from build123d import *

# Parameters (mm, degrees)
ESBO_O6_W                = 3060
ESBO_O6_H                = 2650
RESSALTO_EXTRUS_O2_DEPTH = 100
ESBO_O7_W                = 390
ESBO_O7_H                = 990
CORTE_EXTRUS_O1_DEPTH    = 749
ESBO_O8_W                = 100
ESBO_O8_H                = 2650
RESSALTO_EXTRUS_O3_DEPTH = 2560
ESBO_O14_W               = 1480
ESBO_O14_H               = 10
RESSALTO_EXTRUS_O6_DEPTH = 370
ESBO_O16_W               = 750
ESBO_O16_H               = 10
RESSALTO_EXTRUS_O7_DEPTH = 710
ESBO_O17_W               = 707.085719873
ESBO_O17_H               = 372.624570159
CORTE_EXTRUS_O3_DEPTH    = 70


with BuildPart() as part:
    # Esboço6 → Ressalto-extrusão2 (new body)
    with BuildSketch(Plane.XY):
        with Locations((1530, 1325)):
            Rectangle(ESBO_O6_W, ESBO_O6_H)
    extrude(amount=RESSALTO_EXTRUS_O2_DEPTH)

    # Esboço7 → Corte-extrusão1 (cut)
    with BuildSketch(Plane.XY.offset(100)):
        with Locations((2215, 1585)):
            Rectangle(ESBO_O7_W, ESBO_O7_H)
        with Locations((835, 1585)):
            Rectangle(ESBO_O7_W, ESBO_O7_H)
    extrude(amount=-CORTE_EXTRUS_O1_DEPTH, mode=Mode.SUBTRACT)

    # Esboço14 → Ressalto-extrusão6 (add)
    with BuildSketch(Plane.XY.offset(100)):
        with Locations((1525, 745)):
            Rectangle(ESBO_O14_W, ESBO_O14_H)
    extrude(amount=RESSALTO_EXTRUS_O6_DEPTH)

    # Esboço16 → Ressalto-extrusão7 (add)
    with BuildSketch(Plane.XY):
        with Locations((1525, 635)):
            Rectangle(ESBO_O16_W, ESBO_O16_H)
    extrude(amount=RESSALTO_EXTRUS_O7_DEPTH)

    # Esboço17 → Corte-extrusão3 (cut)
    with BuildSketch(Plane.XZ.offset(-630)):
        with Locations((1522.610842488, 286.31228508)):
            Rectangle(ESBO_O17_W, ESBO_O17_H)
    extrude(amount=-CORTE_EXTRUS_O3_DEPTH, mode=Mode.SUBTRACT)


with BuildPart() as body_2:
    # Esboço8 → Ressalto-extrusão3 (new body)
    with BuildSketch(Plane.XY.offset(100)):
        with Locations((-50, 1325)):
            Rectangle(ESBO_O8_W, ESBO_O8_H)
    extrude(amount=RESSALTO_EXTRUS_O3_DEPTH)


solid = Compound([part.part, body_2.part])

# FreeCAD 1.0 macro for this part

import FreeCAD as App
import Part
import Sketcher
Q = App.Units.Quantity


def add_polygon(sketch, points):
    """Adds a closed chain of lines whose ends are joined by coincident constraints."""
    first, n = sketch.GeometryCount, len(points)
    for a, b in zip(points, points[1:] + points[:1]):
        sketch.addGeometry(Part.LineSegment(App.Vector(*a, 0), App.Vector(*b, 0)), False)
    for i in range(n):
        sketch.addConstraint(Sketcher.Constraint("Coincident", first + i, 2, first + (i + 1) % n, 1))

doc = App.newDocument("Part")
params = doc.addObject("Spreadsheet::Sheet", "Params")
for row, (alias, value) in enumerate([
    ("sketch1_width", "3060 mm"),
    ("sketch1_height", "2650 mm"),
    ("pad1_length", "100 mm"),
    ("sketch2_width", "390 mm"),
    ("sketch2_height", "990 mm"),
    ("pocket1_length", "749 mm"),
    ("sketch3_width", "1480 mm"),
    ("sketch3_height", "10 mm"),
    ("pad2_length", "370 mm"),
    ("sketch4_width", "750 mm"),
    ("sketch4_height", "10 mm"),
    ("pad3_length", "710 mm"),
    ("pocket2_length", "70 mm"),
    ("sketch6_width", "100 mm"),
    ("sketch6_height", "2650 mm"),
    ("pad4_length", "2560 mm"),
], start=1):
    params.set(f"A{row}", alias)
    params.set(f"B{row}", "=" + value)
    params.setAlias(f"B{row}", alias)

body = doc.addObject("PartDesign::Body", "Body")

# Sketch on XY plane
sketch1 = body.newObject("Sketcher::SketchObject", "Sketch")
sketch1.AttachmentSupport = (doc.getObject("XY_Plane"), [""])
sketch1.MapMode = "FlatFace"
add_polygon(sketch1, [(0, 2650), (0, 0), (3060, 0), (3060, 2650)])  # lines 0-3
sketch1.addConstraint([
    Sketcher.Constraint("Vertical", 0),
    Sketcher.Constraint("Horizontal", 1),
    Sketcher.Constraint("Vertical", 2),
    Sketcher.Constraint("Horizontal", 3),
    Sketcher.Constraint("Coincident", 0, 2, -1, 1),
    Sketcher.Constraint("DistanceX", 1, 1, 1, 2, Q("3060 mm")),
    Sketcher.Constraint("DistanceY", 0, 2, 0, 1, Q("2650 mm")),
])
sketch1.setExpression("Constraints[9]", "Params.sketch1_width")
sketch1.setExpression("Constraints[10]", "Params.sketch1_height")
pad1 = body.newObject("PartDesign::Pad", "Pad")
pad1.Profile = sketch1
pad1.setExpression("Length", "Params.pad1_length")

# Sketch on XY plane
sketch2 = body.newObject("Sketcher::SketchObject", "Sketch001")
sketch2.AttachmentSupport = (doc.getObject("XY_Plane"), [""])
sketch2.MapMode = "FlatFace"
sketch2.AttachmentOffset = App.Placement(App.Vector(0, 0, 100), App.Rotation())
add_polygon(sketch2, [(2020, 2080), (2020, 1090), (2410, 1090), (2410, 2080)])  # lines 0-3
add_polygon(sketch2, [(640, 2080), (640, 1090), (1030, 1090), (1030, 2080)])  # lines 4-7
sketch2.addConstraint([
    Sketcher.Constraint("Vertical", 0),
    Sketcher.Constraint("Horizontal", 1),
    Sketcher.Constraint("Vertical", 2),
    Sketcher.Constraint("Horizontal", 3),
    Sketcher.Constraint("Vertical", 4),
    Sketcher.Constraint("Horizontal", 5),
    Sketcher.Constraint("Vertical", 6),
    Sketcher.Constraint("Horizontal", 7),
    Sketcher.Constraint("Horizontal", 1, 2, 4, 2),
    Sketcher.Constraint("Horizontal", 3, 2, 6, 2),
    Sketcher.Constraint("Equal", 3, 5),
    Sketcher.Constraint("DistanceX", 1, 1, 1, 2, Q("390 mm")),
    Sketcher.Constraint("DistanceY", 0, 2, 0, 1, Q("990 mm")),
    Sketcher.Constraint("DistanceX", -1, 1, 0, 2, Q("2020 mm")),
    Sketcher.Constraint("DistanceY", -1, 1, 0, 2, Q("1090 mm")),
    Sketcher.Constraint("DistanceX", -1, 1, 4, 2, Q("640 mm")),
])
sketch2.setExpression("Constraints[19]", "Params.sketch2_width")
sketch2.setExpression("Constraints[20]", "Params.sketch2_height")
pocket1 = body.newObject("PartDesign::Pocket", "Pocket")
pocket1.Profile = sketch2
pocket1.setExpression("Length", "Params.pocket1_length")

# Sketch on XY plane
sketch3 = body.newObject("Sketcher::SketchObject", "Sketch002")
sketch3.AttachmentSupport = (doc.getObject("XY_Plane"), [""])
sketch3.MapMode = "FlatFace"
sketch3.AttachmentOffset = App.Placement(App.Vector(0, 0, 100), App.Rotation())
add_polygon(sketch3, [(785, 750), (785, 740), (2265, 740), (2265, 750)])  # lines 0-3
sketch3.addConstraint([
    Sketcher.Constraint("Vertical", 0),
    Sketcher.Constraint("Horizontal", 1),
    Sketcher.Constraint("Vertical", 2),
    Sketcher.Constraint("Horizontal", 3),
    Sketcher.Constraint("DistanceX", 1, 1, 1, 2, Q("1480 mm")),
    Sketcher.Constraint("DistanceY", 0, 2, 0, 1, Q("10 mm")),
    Sketcher.Constraint("DistanceX", -1, 1, 0, 2, Q("785 mm")),
    Sketcher.Constraint("DistanceY", -1, 1, 0, 2, Q("740 mm")),
])
sketch3.setExpression("Constraints[8]", "Params.sketch3_width")
sketch3.setExpression("Constraints[9]", "Params.sketch3_height")
pad2 = body.newObject("PartDesign::Pad", "Pad001")
pad2.Profile = sketch3
pad2.setExpression("Length", "Params.pad2_length")

# Sketch on XY plane
sketch4 = body.newObject("Sketcher::SketchObject", "Sketch003")
sketch4.AttachmentSupport = (doc.getObject("XY_Plane"), [""])
sketch4.MapMode = "FlatFace"
add_polygon(sketch4, [(1150, 640), (1150, 630), (1900, 630), (1900, 640)])  # lines 0-3
sketch4.addConstraint([
    Sketcher.Constraint("Vertical", 0),
    Sketcher.Constraint("Horizontal", 1),
    Sketcher.Constraint("Vertical", 2),
    Sketcher.Constraint("Horizontal", 3),
    Sketcher.Constraint("DistanceX", 1, 1, 1, 2, Q("750 mm")),
    Sketcher.Constraint("DistanceY", 0, 2, 0, 1, Q("10 mm")),
    Sketcher.Constraint("DistanceX", -1, 1, 0, 2, Q("1150 mm")),
    Sketcher.Constraint("DistanceY", -1, 1, 0, 2, Q("630 mm")),
])
sketch4.setExpression("Constraints[8]", "Params.sketch4_width")
sketch4.setExpression("Constraints[9]", "Params.sketch4_height")
pad3 = body.newObject("PartDesign::Pad", "Pad002")
pad3.Profile = sketch4
pad3.setExpression("Length", "Params.pad3_length")

# Sketch on XZ plane
sketch5 = body.newObject("Sketcher::SketchObject", "Sketch004")
sketch5.AttachmentSupport = (doc.getObject("XZ_Plane"), [""])
sketch5.MapMode = "FlatFace"
sketch5.AttachmentOffset = App.Placement(App.Vector(0, 0, -630), App.Rotation())
add_polygon(sketch5, [(1169.067983, 472.62457), (1169.067983, 100), (1876.153702, 100), (1876.153702, 472.62457)])  # lines 0-3
sketch5.addConstraint([
    Sketcher.Constraint("Vertical", 0),
    Sketcher.Constraint("Horizontal", 1),
    Sketcher.Constraint("Vertical", 2),
    Sketcher.Constraint("Horizontal", 3),
    Sketcher.Constraint("DistanceY", -1, 1, 0, 2, Q("100 mm")),
    Sketcher.Constraint("DistanceX", 1, 1, 1, 2, Q("707.08572 mm")),
    Sketcher.Constraint("DistanceY", 0, 2, 0, 1, Q("372.62457 mm")),
    Sketcher.Constraint("DistanceX", -1, 1, 0, 2, Q("1169.067983 mm")),
])
pocket2 = body.newObject("PartDesign::Pocket", "Pocket001")
pocket2.Profile = sketch5
pocket2.setExpression("Length", "Params.pocket2_length")
body2 = doc.addObject("PartDesign::Body", "Body001")

# Sketch on XY plane
sketch6 = body2.newObject("Sketcher::SketchObject", "Sketch005")
sketch6.AttachmentSupport = (doc.getObject("XY_Plane001"), [""])
sketch6.MapMode = "FlatFace"
sketch6.AttachmentOffset = App.Placement(App.Vector(0, 0, 100), App.Rotation())
add_polygon(sketch6, [(-100, 2650), (-100, 0), (0, 0), (0, 2650)])  # lines 0-3
sketch6.addConstraint([
    Sketcher.Constraint("Vertical", 0),
    Sketcher.Constraint("Horizontal", 1),
    Sketcher.Constraint("Vertical", 2),
    Sketcher.Constraint("Horizontal", 3),
    Sketcher.Constraint("Coincident", 1, 2, -1, 1),
    Sketcher.Constraint("DistanceX", 1, 1, 1, 2, Q("100 mm")),
    Sketcher.Constraint("DistanceY", 0, 2, 0, 1, Q("2650 mm")),
])
sketch6.setExpression("Constraints[9]", "Params.sketch6_width")
sketch6.setExpression("Constraints[10]", "Params.sketch6_height")
pad4 = body2.newObject("PartDesign::Pad", "Pad003")
pad4.Profile = sketch6
pad4.setExpression("Length", "Params.pad4_length")

doc.recompute()
